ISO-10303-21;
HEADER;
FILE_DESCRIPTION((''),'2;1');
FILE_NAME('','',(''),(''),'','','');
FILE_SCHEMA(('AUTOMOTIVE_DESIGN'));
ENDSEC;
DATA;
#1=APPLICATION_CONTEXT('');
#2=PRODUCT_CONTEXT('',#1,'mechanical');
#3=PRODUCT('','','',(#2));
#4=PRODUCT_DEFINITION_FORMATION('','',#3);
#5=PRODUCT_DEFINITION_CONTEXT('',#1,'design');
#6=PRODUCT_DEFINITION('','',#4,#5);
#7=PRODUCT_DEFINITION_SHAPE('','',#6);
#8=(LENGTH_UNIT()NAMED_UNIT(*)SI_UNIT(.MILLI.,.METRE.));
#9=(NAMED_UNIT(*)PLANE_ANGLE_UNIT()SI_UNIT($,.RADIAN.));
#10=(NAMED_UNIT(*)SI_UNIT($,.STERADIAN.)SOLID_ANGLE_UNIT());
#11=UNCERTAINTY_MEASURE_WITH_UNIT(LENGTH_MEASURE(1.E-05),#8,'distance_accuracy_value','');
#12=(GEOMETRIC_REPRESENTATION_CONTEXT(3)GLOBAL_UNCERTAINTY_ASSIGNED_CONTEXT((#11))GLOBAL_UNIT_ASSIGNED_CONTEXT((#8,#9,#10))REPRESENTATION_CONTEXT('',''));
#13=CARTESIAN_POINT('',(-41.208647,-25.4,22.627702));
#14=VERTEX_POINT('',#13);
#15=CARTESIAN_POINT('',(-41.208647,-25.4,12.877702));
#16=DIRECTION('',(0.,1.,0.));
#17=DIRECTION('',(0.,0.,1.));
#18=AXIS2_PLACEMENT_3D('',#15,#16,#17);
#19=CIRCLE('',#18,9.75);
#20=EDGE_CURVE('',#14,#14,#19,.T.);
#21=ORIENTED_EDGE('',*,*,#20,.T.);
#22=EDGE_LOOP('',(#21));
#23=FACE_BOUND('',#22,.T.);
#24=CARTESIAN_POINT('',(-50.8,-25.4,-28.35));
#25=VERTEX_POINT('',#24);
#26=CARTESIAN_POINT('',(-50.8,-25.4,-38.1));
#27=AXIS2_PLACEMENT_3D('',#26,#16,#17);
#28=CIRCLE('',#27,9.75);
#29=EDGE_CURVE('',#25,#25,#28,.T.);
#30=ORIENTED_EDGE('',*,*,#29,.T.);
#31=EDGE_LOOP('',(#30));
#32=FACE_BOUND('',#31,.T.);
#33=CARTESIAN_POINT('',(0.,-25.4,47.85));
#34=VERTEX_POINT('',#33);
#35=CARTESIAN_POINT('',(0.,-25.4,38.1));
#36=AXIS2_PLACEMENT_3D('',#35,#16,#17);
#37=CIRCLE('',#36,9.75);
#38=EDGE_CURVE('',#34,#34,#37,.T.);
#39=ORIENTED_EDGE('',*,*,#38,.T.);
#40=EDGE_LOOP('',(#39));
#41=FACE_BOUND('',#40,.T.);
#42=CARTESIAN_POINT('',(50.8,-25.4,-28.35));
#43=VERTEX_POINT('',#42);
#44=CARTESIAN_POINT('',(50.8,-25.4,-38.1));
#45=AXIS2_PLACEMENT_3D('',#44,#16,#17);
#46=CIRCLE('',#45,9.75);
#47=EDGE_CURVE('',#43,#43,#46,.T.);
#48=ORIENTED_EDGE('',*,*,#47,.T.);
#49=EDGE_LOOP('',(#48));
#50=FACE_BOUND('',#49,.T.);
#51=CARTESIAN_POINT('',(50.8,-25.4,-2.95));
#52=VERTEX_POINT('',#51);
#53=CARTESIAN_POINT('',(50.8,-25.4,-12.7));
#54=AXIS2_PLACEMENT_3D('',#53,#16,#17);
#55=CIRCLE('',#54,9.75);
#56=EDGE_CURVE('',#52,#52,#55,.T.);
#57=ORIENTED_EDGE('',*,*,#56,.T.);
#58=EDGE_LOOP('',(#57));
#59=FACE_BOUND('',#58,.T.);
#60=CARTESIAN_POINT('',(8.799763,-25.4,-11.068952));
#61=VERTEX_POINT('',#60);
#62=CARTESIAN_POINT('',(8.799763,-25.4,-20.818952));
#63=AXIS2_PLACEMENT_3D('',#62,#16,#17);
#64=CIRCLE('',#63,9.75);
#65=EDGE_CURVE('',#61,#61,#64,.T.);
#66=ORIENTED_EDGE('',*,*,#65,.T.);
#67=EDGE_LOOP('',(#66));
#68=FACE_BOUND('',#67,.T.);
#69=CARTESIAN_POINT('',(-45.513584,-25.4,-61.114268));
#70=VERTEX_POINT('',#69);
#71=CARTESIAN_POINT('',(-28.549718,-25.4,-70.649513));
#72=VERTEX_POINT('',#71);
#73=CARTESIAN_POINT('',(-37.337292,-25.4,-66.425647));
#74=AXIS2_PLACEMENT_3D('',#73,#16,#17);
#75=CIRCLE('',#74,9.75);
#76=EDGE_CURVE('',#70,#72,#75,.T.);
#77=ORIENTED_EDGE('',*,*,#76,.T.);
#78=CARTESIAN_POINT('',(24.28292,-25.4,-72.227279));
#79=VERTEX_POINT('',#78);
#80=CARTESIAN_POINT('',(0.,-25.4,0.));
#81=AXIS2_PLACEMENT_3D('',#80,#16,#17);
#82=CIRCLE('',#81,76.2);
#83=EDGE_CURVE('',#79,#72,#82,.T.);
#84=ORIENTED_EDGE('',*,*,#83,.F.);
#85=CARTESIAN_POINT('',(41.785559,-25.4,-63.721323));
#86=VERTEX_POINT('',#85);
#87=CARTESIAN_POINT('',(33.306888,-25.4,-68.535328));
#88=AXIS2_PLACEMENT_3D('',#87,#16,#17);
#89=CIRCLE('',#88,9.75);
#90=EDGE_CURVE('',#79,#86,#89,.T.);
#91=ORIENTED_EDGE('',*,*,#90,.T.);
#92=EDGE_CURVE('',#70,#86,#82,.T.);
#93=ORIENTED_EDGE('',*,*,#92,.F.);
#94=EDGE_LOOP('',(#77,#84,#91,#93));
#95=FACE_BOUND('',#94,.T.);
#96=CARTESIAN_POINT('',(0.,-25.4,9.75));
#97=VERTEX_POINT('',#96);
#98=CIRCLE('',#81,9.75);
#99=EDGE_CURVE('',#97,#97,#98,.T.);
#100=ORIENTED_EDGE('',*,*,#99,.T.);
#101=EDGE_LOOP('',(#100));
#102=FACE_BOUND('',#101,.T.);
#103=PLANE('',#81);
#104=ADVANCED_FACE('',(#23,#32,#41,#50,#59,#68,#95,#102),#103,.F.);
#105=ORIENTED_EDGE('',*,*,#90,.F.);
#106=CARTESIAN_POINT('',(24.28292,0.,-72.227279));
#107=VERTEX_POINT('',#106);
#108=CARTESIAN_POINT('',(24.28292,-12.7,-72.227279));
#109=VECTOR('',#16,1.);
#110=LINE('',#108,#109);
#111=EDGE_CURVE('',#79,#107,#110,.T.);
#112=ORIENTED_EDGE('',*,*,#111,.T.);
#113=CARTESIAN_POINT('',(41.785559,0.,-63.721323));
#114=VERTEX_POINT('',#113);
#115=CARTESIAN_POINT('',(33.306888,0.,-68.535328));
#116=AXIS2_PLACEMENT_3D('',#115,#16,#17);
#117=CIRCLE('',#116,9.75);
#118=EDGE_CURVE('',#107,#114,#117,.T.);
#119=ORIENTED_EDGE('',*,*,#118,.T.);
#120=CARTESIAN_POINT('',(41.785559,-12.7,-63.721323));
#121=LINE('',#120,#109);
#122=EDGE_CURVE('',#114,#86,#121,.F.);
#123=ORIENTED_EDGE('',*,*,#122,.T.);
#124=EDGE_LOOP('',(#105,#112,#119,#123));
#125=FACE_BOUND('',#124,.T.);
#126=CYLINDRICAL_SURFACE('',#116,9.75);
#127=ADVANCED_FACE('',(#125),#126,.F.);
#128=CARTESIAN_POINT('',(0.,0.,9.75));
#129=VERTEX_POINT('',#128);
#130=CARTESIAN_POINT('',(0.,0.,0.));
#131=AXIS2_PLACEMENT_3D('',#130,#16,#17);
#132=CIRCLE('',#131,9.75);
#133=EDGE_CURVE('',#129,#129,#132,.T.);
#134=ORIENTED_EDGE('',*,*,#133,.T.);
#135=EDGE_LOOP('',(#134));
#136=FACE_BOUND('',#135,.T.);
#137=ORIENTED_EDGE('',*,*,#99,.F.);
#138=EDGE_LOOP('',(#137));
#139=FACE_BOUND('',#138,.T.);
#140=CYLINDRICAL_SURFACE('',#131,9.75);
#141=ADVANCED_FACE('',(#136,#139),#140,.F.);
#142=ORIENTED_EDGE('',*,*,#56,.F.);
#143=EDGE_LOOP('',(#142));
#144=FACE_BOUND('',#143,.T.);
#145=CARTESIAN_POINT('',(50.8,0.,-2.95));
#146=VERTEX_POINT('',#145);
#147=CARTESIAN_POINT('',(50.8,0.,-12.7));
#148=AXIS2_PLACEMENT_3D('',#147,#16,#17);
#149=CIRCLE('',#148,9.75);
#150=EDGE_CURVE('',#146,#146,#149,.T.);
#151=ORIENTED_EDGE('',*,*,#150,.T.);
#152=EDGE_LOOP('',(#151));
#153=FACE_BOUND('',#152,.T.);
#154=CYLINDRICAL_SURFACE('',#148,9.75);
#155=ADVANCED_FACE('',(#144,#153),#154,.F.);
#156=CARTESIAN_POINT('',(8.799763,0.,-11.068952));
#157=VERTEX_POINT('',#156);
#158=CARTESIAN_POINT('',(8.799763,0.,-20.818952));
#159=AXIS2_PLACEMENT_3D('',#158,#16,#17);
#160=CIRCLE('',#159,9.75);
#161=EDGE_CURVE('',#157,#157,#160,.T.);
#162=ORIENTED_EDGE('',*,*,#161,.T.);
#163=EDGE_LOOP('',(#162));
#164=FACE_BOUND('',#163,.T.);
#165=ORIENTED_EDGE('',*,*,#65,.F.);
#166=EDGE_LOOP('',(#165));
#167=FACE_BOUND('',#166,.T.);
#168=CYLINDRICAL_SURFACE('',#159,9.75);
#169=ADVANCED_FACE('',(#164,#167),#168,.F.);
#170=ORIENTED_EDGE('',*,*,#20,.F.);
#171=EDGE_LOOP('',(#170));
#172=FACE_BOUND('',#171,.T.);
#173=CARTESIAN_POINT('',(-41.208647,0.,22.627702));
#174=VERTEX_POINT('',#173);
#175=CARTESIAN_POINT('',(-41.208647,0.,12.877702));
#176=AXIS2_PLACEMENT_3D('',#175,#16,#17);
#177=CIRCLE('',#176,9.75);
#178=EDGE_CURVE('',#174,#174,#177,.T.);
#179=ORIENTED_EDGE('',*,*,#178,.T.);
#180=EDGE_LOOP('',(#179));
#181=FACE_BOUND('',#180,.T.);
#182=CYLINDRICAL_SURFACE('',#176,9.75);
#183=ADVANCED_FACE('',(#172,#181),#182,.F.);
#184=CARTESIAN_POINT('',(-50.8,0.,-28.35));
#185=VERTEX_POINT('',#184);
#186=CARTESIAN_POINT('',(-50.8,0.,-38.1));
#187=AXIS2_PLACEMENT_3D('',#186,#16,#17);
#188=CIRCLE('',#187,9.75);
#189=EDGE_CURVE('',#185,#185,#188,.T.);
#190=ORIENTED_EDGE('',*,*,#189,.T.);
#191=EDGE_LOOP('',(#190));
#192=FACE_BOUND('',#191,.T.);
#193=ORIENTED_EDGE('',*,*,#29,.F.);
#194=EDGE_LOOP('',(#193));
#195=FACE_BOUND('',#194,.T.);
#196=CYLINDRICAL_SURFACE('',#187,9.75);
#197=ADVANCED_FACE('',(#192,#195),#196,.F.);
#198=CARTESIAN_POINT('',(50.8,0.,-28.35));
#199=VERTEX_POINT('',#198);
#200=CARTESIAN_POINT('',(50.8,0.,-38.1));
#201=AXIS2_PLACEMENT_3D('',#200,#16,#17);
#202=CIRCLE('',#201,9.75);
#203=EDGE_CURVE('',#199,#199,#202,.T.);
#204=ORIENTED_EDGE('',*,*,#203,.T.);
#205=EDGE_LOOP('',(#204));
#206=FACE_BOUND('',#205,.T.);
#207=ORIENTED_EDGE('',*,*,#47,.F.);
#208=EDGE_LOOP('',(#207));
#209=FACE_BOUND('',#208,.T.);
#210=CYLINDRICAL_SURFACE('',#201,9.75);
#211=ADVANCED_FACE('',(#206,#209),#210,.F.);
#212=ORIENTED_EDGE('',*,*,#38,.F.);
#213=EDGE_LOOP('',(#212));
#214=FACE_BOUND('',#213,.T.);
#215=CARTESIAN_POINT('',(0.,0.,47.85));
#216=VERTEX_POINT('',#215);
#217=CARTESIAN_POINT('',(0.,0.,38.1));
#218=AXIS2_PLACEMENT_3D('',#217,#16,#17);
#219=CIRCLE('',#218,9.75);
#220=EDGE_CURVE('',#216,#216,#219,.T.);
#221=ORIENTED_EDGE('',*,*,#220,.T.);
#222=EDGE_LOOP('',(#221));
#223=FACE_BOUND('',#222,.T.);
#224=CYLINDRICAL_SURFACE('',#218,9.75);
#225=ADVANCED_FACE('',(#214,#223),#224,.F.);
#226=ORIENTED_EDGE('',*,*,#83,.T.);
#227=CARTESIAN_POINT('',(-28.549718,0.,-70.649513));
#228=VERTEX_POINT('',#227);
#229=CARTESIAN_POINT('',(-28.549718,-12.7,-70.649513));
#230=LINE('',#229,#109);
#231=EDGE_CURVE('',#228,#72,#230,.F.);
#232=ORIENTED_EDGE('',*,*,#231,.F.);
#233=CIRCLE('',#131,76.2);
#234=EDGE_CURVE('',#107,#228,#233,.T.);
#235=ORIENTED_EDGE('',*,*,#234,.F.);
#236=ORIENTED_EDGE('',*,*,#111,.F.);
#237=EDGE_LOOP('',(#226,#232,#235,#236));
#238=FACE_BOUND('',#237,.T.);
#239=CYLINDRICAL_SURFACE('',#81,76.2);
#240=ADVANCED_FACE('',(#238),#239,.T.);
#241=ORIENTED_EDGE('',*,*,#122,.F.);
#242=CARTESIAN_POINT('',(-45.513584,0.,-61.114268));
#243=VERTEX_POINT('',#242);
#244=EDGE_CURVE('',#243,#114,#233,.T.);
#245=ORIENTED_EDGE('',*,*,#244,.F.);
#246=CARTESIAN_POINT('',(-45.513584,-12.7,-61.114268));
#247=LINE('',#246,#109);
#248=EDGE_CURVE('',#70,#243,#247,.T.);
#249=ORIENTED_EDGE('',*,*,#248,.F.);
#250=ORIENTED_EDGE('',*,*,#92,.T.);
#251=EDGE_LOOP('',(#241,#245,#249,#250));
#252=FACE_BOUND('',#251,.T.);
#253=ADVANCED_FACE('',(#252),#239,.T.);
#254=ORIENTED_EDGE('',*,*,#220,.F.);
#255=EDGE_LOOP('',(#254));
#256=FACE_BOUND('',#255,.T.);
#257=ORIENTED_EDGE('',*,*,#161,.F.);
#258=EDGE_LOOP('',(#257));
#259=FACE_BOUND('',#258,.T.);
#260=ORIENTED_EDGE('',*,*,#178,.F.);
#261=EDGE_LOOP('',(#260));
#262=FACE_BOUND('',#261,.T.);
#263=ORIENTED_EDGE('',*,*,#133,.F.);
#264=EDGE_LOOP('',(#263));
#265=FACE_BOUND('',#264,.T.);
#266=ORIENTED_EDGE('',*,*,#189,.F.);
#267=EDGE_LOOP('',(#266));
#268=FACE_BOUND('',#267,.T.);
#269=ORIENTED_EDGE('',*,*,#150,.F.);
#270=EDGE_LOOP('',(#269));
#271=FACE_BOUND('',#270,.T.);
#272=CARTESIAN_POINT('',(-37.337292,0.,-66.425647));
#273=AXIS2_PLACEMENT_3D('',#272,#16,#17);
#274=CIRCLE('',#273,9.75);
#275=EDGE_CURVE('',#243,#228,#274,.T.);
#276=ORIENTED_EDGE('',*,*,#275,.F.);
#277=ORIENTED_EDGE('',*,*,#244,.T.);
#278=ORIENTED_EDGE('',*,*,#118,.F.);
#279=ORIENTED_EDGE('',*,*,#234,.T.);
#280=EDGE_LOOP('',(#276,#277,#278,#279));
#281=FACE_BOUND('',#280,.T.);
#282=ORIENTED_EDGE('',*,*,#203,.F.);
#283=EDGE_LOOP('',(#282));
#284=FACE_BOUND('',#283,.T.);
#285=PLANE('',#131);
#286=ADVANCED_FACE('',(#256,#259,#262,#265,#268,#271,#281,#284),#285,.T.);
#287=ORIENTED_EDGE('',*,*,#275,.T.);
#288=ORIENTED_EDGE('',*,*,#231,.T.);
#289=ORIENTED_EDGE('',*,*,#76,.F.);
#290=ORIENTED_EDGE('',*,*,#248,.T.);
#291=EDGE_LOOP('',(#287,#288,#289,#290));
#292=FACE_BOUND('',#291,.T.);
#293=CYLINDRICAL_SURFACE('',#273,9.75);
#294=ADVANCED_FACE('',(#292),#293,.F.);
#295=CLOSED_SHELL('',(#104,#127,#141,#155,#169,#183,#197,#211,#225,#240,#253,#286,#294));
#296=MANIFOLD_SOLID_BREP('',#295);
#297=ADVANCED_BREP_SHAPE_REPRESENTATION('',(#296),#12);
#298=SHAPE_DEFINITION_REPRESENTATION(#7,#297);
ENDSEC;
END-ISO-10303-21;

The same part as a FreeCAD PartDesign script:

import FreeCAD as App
import Part
import Sketcher

V = App.Vector
Q = App.Units.Quantity

doc = App.newDocument("Part")
params = doc.addObject("Spreadsheet::Sheet", "Params")
for row, (alias, value) in enumerate([
    ("sketch1_diameter", "6 in"),
    ("pad1_length", "1 in"),
    ("hole_diameter", "19.5 mm"),
], start=1):
    params.set(f"A{row}", alias)
    params.set(f"B{row}", "=" + value)
    params.setAlias(f"B{row}", alias)

body = doc.addObject("PartDesign::Body", "Body")

sketch1 = body.newObject("Sketcher::SketchObject", "Sketch")
sketch1.AttachmentSupport = (doc.getObject("XZ_Plane"), [""])
sketch1.MapMode = "FlatFace"
sketch1.addGeometry(Part.Circle(V(0, 0, 0), V(0, 0, 1), 76), False)
sketch1.addConstraint(Sketcher.Constraint("Coincident", 0, 3, -1, 1))
sketch1.addConstraint(Sketcher.Constraint("Diameter", 0, Q("6 in")))
sketch1.setExpression("Constraints[1]", "Params.sketch1_diameter")
pad1 = body.newObject("PartDesign::Pad", "Pad")
pad1.Profile = sketch1
pad1.setExpression("Length", "Params.pad1_length")

sketch2 = body.newObject("Sketcher::SketchObject", "Sketch001")
sketch2.AttachmentSupport = (doc.getObject("XZ_Plane"), [""])
sketch2.MapMode = "FlatFace"
sketch2.addGeometry(Part.Circle(V(51, -13, 0), V(0, 0, 1), 10), False)
sketch2.addGeometry(Part.Circle(V(0, 38, 0), V(0, 0, 1), 10), False)
sketch2.addGeometry(Part.Circle(V(0, 0, 0), V(0, 0, 1), 10), False)
sketch2.addGeometry(Part.Circle(V(-51, -38, 0), V(0, 0, 1), 10), False)
sketch2.addGeometry(Part.Circle(V(51, -38, 0), V(0, 0, 1), 10), False)
sketch2.addGeometry(Part.Circle(V(-37, -66, 0), V(0, 0, 1), 10), False)
sketch2.addGeometry(Part.Circle(V(33, -69, 0), V(0, 0, 1), 10), False)
sketch2.addGeometry(Part.Circle(V(9, -21, 0), V(0, 0, 1), 10), False)
sketch2.addGeometry(Part.Circle(V(-41, 13, 0), V(0, 0, 1), 10), False)
sketch2.addConstraint(Sketcher.Constraint("Coincident", 2, 3, -1, 1))
sketch2.addConstraint(Sketcher.Constraint("Equal", 0, 1))
sketch2.addConstraint(Sketcher.Constraint("Equal", 1, 2))
sketch2.addConstraint(Sketcher.Constraint("Equal", 2, 3))
sketch2.addConstraint(Sketcher.Constraint("Equal", 3, 4))
sketch2.addConstraint(Sketcher.Constraint("Equal", 4, 5))
sketch2.addConstraint(Sketcher.Constraint("Equal", 5, 6))
sketch2.addConstraint(Sketcher.Constraint("Equal", 6, 7))
sketch2.addConstraint(Sketcher.Constraint("Equal", 7, 8))
sketch2.addConstraint(Sketcher.Constraint("Symmetric", 3, 3, 4, 3, -2))
sketch2.addConstraint(Sketcher.Constraint("PointOnObject", 1, 3, -2))
sketch2.addConstraint(Sketcher.Constraint("Vertical", 0, 3, 4, 3))
sketch2.addConstraint(Sketcher.Constraint("DistanceX", -1, 1, 0, 3, Q("2 in")))
sketch2.addConstraint(Sketcher.Constraint("DistanceY", 0, 3, 1, 3, Q("2 in")))
sketch2.addConstraint(Sketcher.Constraint("DistanceY", 3, 3, 1, 3, Q("3 in")))
sketch2.addConstraint(Sketcher.Constraint("DistanceY", 0, 3, -1, 1, Q("0.5 in")))
sketch2.addConstraint(Sketcher.Constraint("Diameter", 0, Q("19.5 mm")))
sketch2.addConstraint(Sketcher.Constraint("DistanceX", 5, 3, -1, 1, Q("37.337292 mm")))
sketch2.addConstraint(Sketcher.Constraint("DistanceX", -1, 1, 6, 3, Q("33.306888 mm")))
sketch2.addConstraint(Sketcher.Constraint("DistanceY", 6, 3, -1, 1, Q("68.535328 mm")))
sketch2.addConstraint(Sketcher.Constraint("DistanceY", 6, 3, 5, 3, Q("2.109681 mm")))
sketch2.addConstraint(Sketcher.Constraint("DistanceX", 8, 3, 7, 3, Q("50.008411 mm")))
sketch2.addConstraint(Sketcher.Constraint("DistanceY", 5, 3, 8, 3, Q("79.30335 mm")))
sketch2.addConstraint(Sketcher.Constraint("DistanceX", -1, 1, 7, 3, Q("8.799763 mm")))
sketch2.addConstraint(Sketcher.Constraint("DistanceY", 7, 3, -1, 1, Q("20.818952 mm")))
doc.recompute()
hole = body.newObject("PartDesign::Hole", "Hole")
hole.Profile = sketch2
hole.ThreadType = "None"
hole.setExpression("Diameter", "Params.hole_diameter")
hole.DepthType = "ThroughAll"
hole.Reversed = True

doc.recompute()
